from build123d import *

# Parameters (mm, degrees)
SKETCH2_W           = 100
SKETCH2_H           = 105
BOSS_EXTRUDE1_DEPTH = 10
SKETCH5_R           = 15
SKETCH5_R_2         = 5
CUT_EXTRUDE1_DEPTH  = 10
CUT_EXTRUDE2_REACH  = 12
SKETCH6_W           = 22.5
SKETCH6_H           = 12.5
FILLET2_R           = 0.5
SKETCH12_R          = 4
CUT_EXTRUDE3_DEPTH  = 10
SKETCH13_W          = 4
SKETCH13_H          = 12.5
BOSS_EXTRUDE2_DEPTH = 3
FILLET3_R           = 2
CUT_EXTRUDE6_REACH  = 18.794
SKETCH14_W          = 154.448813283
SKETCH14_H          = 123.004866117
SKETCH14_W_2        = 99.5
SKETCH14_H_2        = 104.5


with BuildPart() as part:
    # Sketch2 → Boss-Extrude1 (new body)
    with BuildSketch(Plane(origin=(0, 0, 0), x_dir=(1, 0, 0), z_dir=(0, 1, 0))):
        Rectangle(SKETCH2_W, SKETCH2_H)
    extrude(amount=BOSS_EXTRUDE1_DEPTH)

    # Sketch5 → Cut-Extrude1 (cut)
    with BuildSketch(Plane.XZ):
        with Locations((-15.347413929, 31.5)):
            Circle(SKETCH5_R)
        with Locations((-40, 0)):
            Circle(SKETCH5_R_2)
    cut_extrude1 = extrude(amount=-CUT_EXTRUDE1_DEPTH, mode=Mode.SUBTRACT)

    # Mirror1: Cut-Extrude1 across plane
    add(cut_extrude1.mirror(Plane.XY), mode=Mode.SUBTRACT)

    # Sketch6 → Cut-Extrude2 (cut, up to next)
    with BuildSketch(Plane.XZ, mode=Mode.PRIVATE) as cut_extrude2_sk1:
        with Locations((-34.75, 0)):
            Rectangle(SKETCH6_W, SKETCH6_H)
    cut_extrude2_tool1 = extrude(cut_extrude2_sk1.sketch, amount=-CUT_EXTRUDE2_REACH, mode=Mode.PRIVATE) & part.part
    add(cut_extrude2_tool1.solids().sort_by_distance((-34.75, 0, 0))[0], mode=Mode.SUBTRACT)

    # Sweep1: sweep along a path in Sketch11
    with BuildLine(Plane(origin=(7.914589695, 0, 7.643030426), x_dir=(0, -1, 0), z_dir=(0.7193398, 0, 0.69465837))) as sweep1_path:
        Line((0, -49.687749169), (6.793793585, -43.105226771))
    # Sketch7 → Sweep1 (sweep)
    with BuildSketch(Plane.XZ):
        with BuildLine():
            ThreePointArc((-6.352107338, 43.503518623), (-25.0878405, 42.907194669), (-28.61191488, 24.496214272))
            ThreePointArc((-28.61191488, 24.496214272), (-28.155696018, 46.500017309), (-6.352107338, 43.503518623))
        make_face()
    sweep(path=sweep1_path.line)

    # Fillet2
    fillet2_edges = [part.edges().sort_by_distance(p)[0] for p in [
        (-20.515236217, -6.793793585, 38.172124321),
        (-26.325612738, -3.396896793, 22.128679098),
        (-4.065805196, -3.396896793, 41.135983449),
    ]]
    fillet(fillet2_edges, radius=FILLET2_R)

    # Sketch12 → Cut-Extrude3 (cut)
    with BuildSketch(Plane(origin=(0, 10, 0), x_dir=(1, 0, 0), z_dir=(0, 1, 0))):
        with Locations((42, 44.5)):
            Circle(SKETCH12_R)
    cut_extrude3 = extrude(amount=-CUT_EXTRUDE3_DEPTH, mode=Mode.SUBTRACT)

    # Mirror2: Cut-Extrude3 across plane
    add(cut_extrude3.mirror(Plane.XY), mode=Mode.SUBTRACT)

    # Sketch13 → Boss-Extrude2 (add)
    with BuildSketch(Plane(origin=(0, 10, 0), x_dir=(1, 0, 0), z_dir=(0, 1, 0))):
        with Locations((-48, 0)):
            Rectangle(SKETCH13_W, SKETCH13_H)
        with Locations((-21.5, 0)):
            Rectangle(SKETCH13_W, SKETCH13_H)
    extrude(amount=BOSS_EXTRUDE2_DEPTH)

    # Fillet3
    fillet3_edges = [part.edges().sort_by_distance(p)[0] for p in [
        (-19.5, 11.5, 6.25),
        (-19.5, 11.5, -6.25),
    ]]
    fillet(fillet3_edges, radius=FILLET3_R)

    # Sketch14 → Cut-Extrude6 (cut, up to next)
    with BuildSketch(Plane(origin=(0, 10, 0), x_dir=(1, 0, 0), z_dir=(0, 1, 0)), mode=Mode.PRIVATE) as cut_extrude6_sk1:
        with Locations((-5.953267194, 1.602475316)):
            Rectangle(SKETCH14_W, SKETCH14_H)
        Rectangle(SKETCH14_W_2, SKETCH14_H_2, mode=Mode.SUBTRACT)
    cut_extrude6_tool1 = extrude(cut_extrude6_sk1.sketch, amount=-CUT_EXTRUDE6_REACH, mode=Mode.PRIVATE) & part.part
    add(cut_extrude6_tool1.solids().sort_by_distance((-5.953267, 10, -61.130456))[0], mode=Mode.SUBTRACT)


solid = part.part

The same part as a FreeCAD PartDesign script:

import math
import FreeCAD as App
import Part
import Sketcher

V = App.Vector
Q = App.Units.Quantity


def edges_at(feature, points):
    """Names of the edges that pass closest to the given points."""
    edges = feature.Shape.Edges
    near = lambda p: min(range(len(edges)), key=lambda i: edges[i].distToShape(Part.Vertex(*p))[0])
    return sorted({f"Edge{near(p) + 1}" for p in points})

doc = App.newDocument("Part")
params = doc.addObject("Spreadsheet::Sheet", "Params")
for row, (alias, value) in enumerate([
    ("sketch1_width", "100 mm"),
    ("sketch1_height", "105 mm"),
    ("pad1_length", "10 mm"),
    ("sketch2_diameter", "30 mm"),
    ("sketch2_diameter2", "10 mm"),
    ("pocket1_length", "10 mm"),
    ("sketch3_width", "22.5 mm"),
    ("sketch3_height", "12.5 mm"),
    ("sketch4_radius", "15 mm"),
    ("fillet_radius", "0.5 mm"),
    ("sketch6_diameter", "8 mm"),
    ("pocket3_length", "10 mm"),
    ("sketch7_width", "4 mm"),
    ("sketch7_height", "12.5 mm"),
    ("pad2_length", "3 mm"),
    ("fillet2_radius", "2 mm"),
    ("sketch8_width", "99.5 mm"),
    ("sketch8_height", "104.5 mm"),
], start=1):
    params.set(f"A{row}", alias)
    params.set(f"B{row}", "=" + value)
    params.setAlias(f"B{row}", alias)

body = doc.addObject("PartDesign::Body", "Body")

sketch1 = body.newObject("Sketcher::SketchObject", "Sketch")
sketch1.AttachmentSupport = (doc.getObject("XZ_Plane"), [""])
sketch1.MapMode = "FlatFace"
sketch1.addGeometry(Part.LineSegment(V(-50, -52.5, 0), V(-50, 52.5, 0)), False)
sketch1.addGeometry(Part.LineSegment(V(-50, 52.5, 0), V(50, 52.5, 0)), False)
sketch1.addGeometry(Part.LineSegment(V(50, 52.5, 0), V(50, -52.5, 0)), False)
sketch1.addGeometry(Part.LineSegment(V(50, -52.5, 0), V(-50, -52.5, 0)), False)
sketch1.addConstraint(Sketcher.Constraint("Coincident", 0, 2, 1, 1))
sketch1.addConstraint(Sketcher.Constraint("Coincident", 1, 2, 2, 1))
sketch1.addConstraint(Sketcher.Constraint("Coincident", 2, 2, 3, 1))
sketch1.addConstraint(Sketcher.Constraint("Coincident", 3, 2, 0, 1))
sketch1.addConstraint(Sketcher.Constraint("Vertical", 0))
sketch1.addConstraint(Sketcher.Constraint("Horizontal", 1))
sketch1.addConstraint(Sketcher.Constraint("Vertical", 2))
sketch1.addConstraint(Sketcher.Constraint("Horizontal", 3))
sketch1.addConstraint(Sketcher.Constraint("Symmetric", 0, 2, 2, 2, -1, 1))
sketch1.addConstraint(Sketcher.Constraint("DistanceX", 1, 1, 1, 2, Q("100 mm")))
sketch1.addConstraint(Sketcher.Constraint("DistanceY", 0, 1, 0, 2, Q("105 mm")))
sketch1.setExpression("Constraints[9]", "Params.sketch1_width")
sketch1.setExpression("Constraints[10]", "Params.sketch1_height")
pad1 = body.newObject("PartDesign::Pad", "Pad")
pad1.Profile = sketch1
pad1.setExpression("Length", "Params.pad1_length")
pad1.Reversed = True

sketch2 = body.newObject("Sketcher::SketchObject", "Sketch001")
sketch2.AttachmentSupport = (doc.getObject("XZ_Plane"), [""])
sketch2.MapMode = "FlatFace"
sketch2.addGeometry(Part.Circle(V(-15.347414, 31.5, 0), V(0, 0, 1), 15), False)
sketch2.addGeometry(Part.Circle(V(-40, 0, 0), V(0, 0, 1), 5), False)
sketch2.addConstraint(Sketcher.Constraint("PointOnObject", 1, 3, -1))
sketch2.addConstraint(Sketcher.Constraint("Diameter", 0, Q("30 mm")))
sketch2.addConstraint(Sketcher.Constraint("Diameter", 1, Q("10 mm")))
sketch2.addConstraint(Sketcher.Constraint("DistanceX", 1, 3, -1, 1, Q("40 mm")))
sketch2.addConstraint(Sketcher.Constraint("DistanceY", -1, 1, 0, 3, Q("31.5 mm")))
sketch2.addConstraint(Sketcher.Constraint("DistanceX", 0, 3, -1, 1, Q("15.347414 mm")))
sketch2.setExpression("Constraints[1]", "Params.sketch2_diameter")
sketch2.setExpression("Constraints[2]", "Params.sketch2_diameter2")
pocket1 = body.newObject("PartDesign::Pocket", "Pocket")
pocket1.Profile = sketch2
pocket1.setExpression("Length", "Params.pocket1_length")
doc.recompute()

mirrored = body.newObject("PartDesign::Mirrored", "Mirrored")
mirrored.Originals = [pocket1]
mirrored.MirrorPlane = (doc.getObject("XY_Plane"), [""])
body.Tip = mirrored

sketch3 = body.newObject("Sketcher::SketchObject", "Sketch002")
sketch3.AttachmentSupport = (doc.getObject("XZ_Plane"), [""])
sketch3.MapMode = "FlatFace"
sketch3.addGeometry(Part.LineSegment(V(-46, 6.25, 0), V(-46, -6.25, 0)), False)
sketch3.addGeometry(Part.LineSegment(V(-46, -6.25, 0), V(-23.5, -6.25, 0)), False)
sketch3.addGeometry(Part.LineSegment(V(-23.5, -6.25, 0), V(-23.5, 6.25, 0)), False)
sketch3.addGeometry(Part.LineSegment(V(-23.5, 6.25, 0), V(-46, 6.25, 0)), False)
sketch3.addConstraint(Sketcher.Constraint("Coincident", 0, 2, 1, 1))
sketch3.addConstraint(Sketcher.Constraint("Coincident", 1, 2, 2, 1))
sketch3.addConstraint(Sketcher.Constraint("Coincident", 2, 2, 3, 1))
sketch3.addConstraint(Sketcher.Constraint("Coincident", 3, 2, 0, 1))
sketch3.addConstraint(Sketcher.Constraint("Vertical", 0))
sketch3.addConstraint(Sketcher.Constraint("Horizontal", 1))
sketch3.addConstraint(Sketcher.Constraint("Vertical", 2))
sketch3.addConstraint(Sketcher.Constraint("Horizontal", 3))
sketch3.addConstraint(Sketcher.Constraint("DistanceX", 1, 1, 1, 2, Q("22.5 mm")))
sketch3.addConstraint(Sketcher.Constraint("DistanceY", 0, 2, 0, 1, Q("12.5 mm")))
sketch3.addConstraint(Sketcher.Constraint("DistanceX", 0, 2, -1, 1, Q("46 mm")))
sketch3.addConstraint(Sketcher.Constraint("DistanceY", 0, 2, -1, 1, Q("6.25 mm")))
sketch3.setExpression("Constraints[8]", "Params.sketch3_width")
sketch3.setExpression("Constraints[9]", "Params.sketch3_height")
pocket2 = body.newObject("PartDesign::Pocket", "Pocket001")
pocket2.Profile = sketch3
pocket2.Type = "UpToFirst"

sketch4 = body.newObject("Sketcher::SketchObject", "Sketch003")
sketch4.AttachmentSupport = (doc.getObject("XZ_Plane"), [""])
sketch4.MapMode = "FlatFace"
sketch4.addGeometry(Part.ArcOfCircle(Part.Circle(V(-15.347414, 31.5, 0), V(0, 0, 1), 15), math.radians(53.152508), math.radians(207.83449)), False)
sketch4.addGeometry(Part.ArcOfCircle(Part.Circle(V(-18.587915, 35.295011, 0), V(0, 0, 1), 14.73413), math.radians(33.856058), math.radians(227.130941)), False)
sketch4.addConstraint(Sketcher.Constraint("Coincident", 0, 1, 1, 1))
sketch4.addConstraint(Sketcher.Constraint("Coincident", 1, 2, 0, 2))
sketch4.addConstraint(Sketcher.Constraint("Radius", 0, Q("15 mm")))
sketch4.addConstraint(Sketcher.Constraint("DistanceY", -1, 1, 0, 3, Q("31.5 mm")))
sketch4.addConstraint(Sketcher.Constraint("Radius", 1, Q("14.73413 mm")))
sketch4.addConstraint(Sketcher.Constraint("DistanceX", 1, 2, 1, 3, Q("10.024 mm")))
sketch4.addConstraint(Sketcher.Constraint("DistanceX", 1, 3, 0, 3, Q("3.240501 mm")))
sketch4.addConstraint(Sketcher.Constraint("DistanceX", 0, 3, -1, 1, Q("15.347414 mm")))
sketch4.setExpression("Constraints[2]", "Params.sketch4_radius")

sketch5 = body.newObject("Sketcher::SketchObject", "Sketch004")
sketch5.Placement = App.Placement(V(0, -20.351995, 29.200676), App.Rotation(V(0, -0.820398048, -0.571792832), V(1, 0, 0), V(0, -0.571792832, 0.820398048), "ZXY"))
sketch5.addGeometry(Part.LineSegment(V(-24.807464, -26.601421, 0), V(-16.52637, -22.028817, 0)), False)
sketch5.addConstraint(Sketcher.Constraint("DistanceY", 0, 1, -1, 1, Q("26.601421 mm")))
sketch5.addConstraint(Sketcher.Constraint("DistanceX", 0, 2, -1, 1, Q("16.52637 mm")))
sketch5.addConstraint(Sketcher.Constraint("Distance", 0, Q("9.459663 mm")))
sketch5.addConstraint(Sketcher.Constraint("DistanceX", 0, 1, -1, 1, Q("24.807464 mm")))
doc.recompute()

additivepipe = body.newObject("PartDesign::AdditivePipe", "AdditivePipe")
additivepipe.Profile = sketch4
additivepipe.Spine = (sketch5, ["Edge1"])
doc.recompute()

fillet = body.newObject("PartDesign::Fillet", "Fillet")
fillet.Base = (additivepipe, edges_at(additivepipe, [(-20.515, -6.794, 38.172), (-26.326, -3.397, 22.129), (-4.066, -3.397, 41.136)]))
fillet.setExpression("Radius", "Params.fillet_radius")

sketch6 = body.newObject("Sketcher::SketchObject", "Sketch005")
sketch6.AttachmentSupport = (doc.getObject("XZ_Plane"), [""])
sketch6.MapMode = "FlatFace"
sketch6.AttachmentOffset = App.Placement(V(0, 0, -10), App.Rotation())
sketch6.addGeometry(Part.Circle(V(42, -44.5, 0), V(0, 0, 1), 4), False)
sketch6.addConstraint(Sketcher.Constraint("Diameter", 0, Q("8 mm")))
sketch6.addConstraint(Sketcher.Constraint("DistanceX", -1, 1, 0, 3, Q("42 mm")))
sketch6.addConstraint(Sketcher.Constraint("DistanceY", 0, 3, -1, 1, Q("44.5 mm")))
sketch6.setExpression("Constraints[0]", "Params.sketch6_diameter")
pocket3 = body.newObject("PartDesign::Pocket", "Pocket002")
pocket3.Profile = sketch6
pocket3.setExpression("Length", "Params.pocket3_length")
pocket3.Reversed = True
doc.recompute()

mirrored2 = body.newObject("PartDesign::Mirrored", "Mirrored001")
mirrored2.Originals = [pocket3]
mirrored2.MirrorPlane = (doc.getObject("XY_Plane"), [""])
body.Tip = mirrored2

sketch7 = body.newObject("Sketcher::SketchObject", "Sketch006")
sketch7.AttachmentSupport = (doc.getObject("XZ_Plane"), [""])
sketch7.MapMode = "FlatFace"
sketch7.AttachmentOffset = App.Placement(V(0, 0, -10), App.Rotation())
sketch7.addGeometry(Part.LineSegment(V(-50, -6.25, 0), V(-50, 6.25, 0)), False)
sketch7.addGeometry(Part.LineSegment(V(-50, 6.25, 0), V(-46, 6.25, 0)), False)
sketch7.addGeometry(Part.LineSegment(V(-46, 6.25, 0), V(-46, -6.25, 0)), False)
sketch7.addGeometry(Part.LineSegment(V(-46, -6.25, 0), V(-50, -6.25, 0)), False)
sketch7.addGeometry(Part.LineSegment(V(-23.5, -6.25, 0), V(-23.5, 6.25, 0)), False)
sketch7.addGeometry(Part.LineSegment(V(-23.5, 6.25, 0), V(-19.5, 6.25, 0)), False)
sketch7.addGeometry(Part.LineSegment(V(-19.5, 6.25, 0), V(-19.5, -6.25, 0)), False)
sketch7.addGeometry(Part.LineSegment(V(-19.5, -6.25, 0), V(-23.5, -6.25, 0)), False)
sketch7.addConstraint(Sketcher.Constraint("Coincident", 0, 2, 1, 1))
sketch7.addConstraint(Sketcher.Constraint("Coincident", 1, 2, 2, 1))
sketch7.addConstraint(Sketcher.Constraint("Coincident", 2, 2, 3, 1))
sketch7.addConstraint(Sketcher.Constraint("Coincident", 3, 2, 0, 1))
sketch7.addConstraint(Sketcher.Constraint("Coincident", 4, 2, 5, 1))
sketch7.addConstraint(Sketcher.Constraint("Coincident", 5, 2, 6, 1))
sketch7.addConstraint(Sketcher.Constraint("Coincident", 6, 2, 7, 1))
sketch7.addConstraint(Sketcher.Constraint("Coincident", 7, 2, 4, 1))
sketch7.addConstraint(Sketcher.Constraint("Vertical", 0))
sketch7.addConstraint(Sketcher.Constraint("Horizontal", 1))
sketch7.addConstraint(Sketcher.Constraint("Vertical", 2))
sketch7.addConstraint(Sketcher.Constraint("Horizontal", 3))
sketch7.addConstraint(Sketcher.Constraint("Vertical", 4))
sketch7.addConstraint(Sketcher.Constraint("Horizontal", 5))
sketch7.addConstraint(Sketcher.Constraint("Vertical", 6))
sketch7.addConstraint(Sketcher.Constraint("Horizontal", 7))
sketch7.addConstraint(Sketcher.Constraint("Horizontal", 1, 2, 4, 2))
sketch7.addConstraint(Sketcher.Constraint("Horizontal", 3, 2, 6, 2))
sketch7.addConstraint(Sketcher.Constraint("Equal", 3, 5))
sketch7.addConstraint(Sketcher.Constraint("DistanceX", 1, 1, 1, 2, Q("4 mm")))
sketch7.addConstraint(Sketcher.Constraint("DistanceY", 0, 1, 0, 2, Q("12.5 mm")))
sketch7.addConstraint(Sketcher.Constraint("DistanceX", 0, 2, -1, 1, Q("50 mm")))
sketch7.addConstraint(Sketcher.Constraint("DistanceX", 4, 2, -1, 1, Q("23.5 mm")))
sketch7.addConstraint(Sketcher.Constraint("DistanceY", -1, 1, 0, 2, Q("6.25 mm")))
sketch7.setExpression("Constraints[19]", "Params.sketch7_width")
sketch7.setExpression("Constraints[20]", "Params.sketch7_height")
pad2 = body.newObject("PartDesign::Pad", "Pad001")
pad2.Profile = sketch7
pad2.setExpression("Length", "Params.pad2_length")
pad2.Reversed = True
doc.recompute()

fillet2 = body.newObject("PartDesign::Fillet", "Fillet001")
fillet2.Base = (pad2, edges_at(pad2, [(-19.5, 11.5, 6.25), (-19.5, 11.5, -6.25)]))
fillet2.setExpression("Radius", "Params.fillet2_radius")

sketch8 = body.newObject("Sketcher::SketchObject", "Sketch007")
sketch8.AttachmentSupport = (doc.getObject("XZ_Plane"), [""])
sketch8.MapMode = "FlatFace"
sketch8.AttachmentOffset = App.Placement(V(0, 0, -10), App.Rotation())
sketch8.addGeometry(Part.LineSegment(V(-83.177674, -63.104908, 0), V(-83.177674, 59.899958, 0)), False)
sketch8.addGeometry(Part.LineSegment(V(-83.177674, 59.899958, 0), V(71.271139, 59.899958, 0)), False)
sketch8.addGeometry(Part.LineSegment(V(71.271139, 59.899958, 0), V(71.271139, -63.104908, 0)), False)
sketch8.addGeometry(Part.LineSegment(V(71.271139, -63.104908, 0), V(-83.177674, -63.104908, 0)), False)
sketch8.addGeometry(Part.LineSegment(V(49.75, 52.25, 0), V(-49.75, 52.25, 0)), False)
sketch8.addGeometry(Part.LineSegment(V(-49.75, 52.25, 0), V(-49.75, -52.25, 0)), False)
sketch8.addGeometry(Part.LineSegment(V(-49.75, -52.25, 0), V(49.75, -52.25, 0)), False)
sketch8.addGeometry(Part.LineSegment(V(49.75, -52.25, 0), V(49.75, 52.25, 0)), False)
sketch8.addConstraint(Sketcher.Constraint("Coincident", 0, 2, 1, 1))
sketch8.addConstraint(Sketcher.Constraint("Coincident", 1, 2, 2, 1))
sketch8.addConstraint(Sketcher.Constraint("Coincident", 2, 2, 3, 1))
sketch8.addConstraint(Sketcher.Constraint("Coincident", 3, 2, 0, 1))
sketch8.addConstraint(Sketcher.Constraint("Coincident", 4, 2, 5, 1))
sketch8.addConstraint(Sketcher.Constraint("Coincident", 5, 2, 6, 1))
sketch8.addConstraint(Sketcher.Constraint("Coincident", 6, 2, 7, 1))
sketch8.addConstraint(Sketcher.Constraint("Coincident", 7, 2, 4, 1))
sketch8.addConstraint(Sketcher.Constraint("Vertical", 0))
sketch8.addConstraint(Sketcher.Constraint("Horizontal", 1))
sketch8.addConstraint(Sketcher.Constraint("Vertical", 2))
sketch8.addConstraint(Sketcher.Constraint("Horizontal", 3))
sketch8.addConstraint(Sketcher.Constraint("Horizontal", 4))
sketch8.addConstraint(Sketcher.Constraint("Vertical", 5))
sketch8.addConstraint(Sketcher.Constraint("Horizontal", 6))
sketch8.addConstraint(Sketcher.Constraint("Vertical", 7))
sketch8.addConstraint(Sketcher.Constraint("Symmetric", 4, 2, 6, 2, -1, 1))
sketch8.addConstraint(Sketcher.Constraint("DistanceX", 4, 2, 4, 1, Q("99.5 mm")))
sketch8.addConstraint(Sketcher.Constraint("DistanceY", 5, 2, 5, 1, Q("104.5 mm")))
sketch8.addConstraint(Sketcher.Constraint("DistanceX", 1, 1, 1, 2, Q("154.448813 mm")))
sketch8.addConstraint(Sketcher.Constraint("DistanceY", 0, 1, 0, 2, Q("123.004866 mm")))
sketch8.addConstraint(Sketcher.Constraint("DistanceX", -1, 1, 1, 2, Q("71.271139 mm")))
sketch8.addConstraint(Sketcher.Constraint("DistanceY", 2, 2, -1, 1, Q("63.104908 mm")))
sketch8.setExpression("Constraints[17]", "Params.sketch8_width")
sketch8.setExpression("Constraints[18]", "Params.sketch8_height")
pocket4 = body.newObject("PartDesign::Pocket", "Pocket003")
pocket4.Profile = sketch8
pocket4.Type = "UpToFirst"
pocket4.Reversed = True

doc.recompute()
